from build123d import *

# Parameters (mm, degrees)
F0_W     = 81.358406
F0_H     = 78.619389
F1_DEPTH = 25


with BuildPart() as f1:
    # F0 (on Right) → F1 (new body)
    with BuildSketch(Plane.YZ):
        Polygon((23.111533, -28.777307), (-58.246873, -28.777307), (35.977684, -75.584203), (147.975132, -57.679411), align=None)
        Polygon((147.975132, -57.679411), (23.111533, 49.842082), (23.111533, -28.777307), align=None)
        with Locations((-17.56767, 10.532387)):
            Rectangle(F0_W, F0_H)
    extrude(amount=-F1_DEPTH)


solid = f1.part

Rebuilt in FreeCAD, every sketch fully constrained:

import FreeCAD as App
import Part
import Sketcher
from FreeCAD import Vector

doc = App.newDocument("Part")
params = doc.addObject("Spreadsheet::Sheet", "Params")
for row, (alias, value) in enumerate([
    ("pad1_length", "25 mm"),
], start=1):
    params.set(f"A{row}", alias)
    params.set(f"B{row}", "=" + value)
    params.setAlias(f"B{row}", alias)

body = doc.addObject("PartDesign::Body", "Body")

sketch1 = body.newObject("Sketcher::SketchObject", "Sketch")
sketch1.AttachmentSupport = (doc.getObject("YZ_Plane"), [""])
sketch1.MapMode = "FlatFace"
sketch1.addGeometry(Part.LineSegment(Vector(23.111533, 49.842081, 0), Vector(23.111533, 49.842082, 0)), False)
sketch1.addGeometry(Part.LineSegment(Vector(23.111533, 49.842081, 0), Vector(-58.246873, 49.842081, 0)), False)
sketch1.addGeometry(Part.LineSegment(Vector(-58.246873, 49.842081, 0), Vector(-58.246873, -28.777307, 0)), False)
sketch1.addGeometry(Part.LineSegment(Vector(-58.246872, -28.777307, 0), Vector(-58.246873, -28.777307, 0)), False)
sketch1.addGeometry(Part.LineSegment(Vector(-58.246872, -28.777307, 0), Vector(35.977684, -75.584203, 0)), False)
sketch1.addGeometry(Part.LineSegment(Vector(35.977684, -75.584203, 0), Vector(147.975132, -57.679411, 0)), False)
sketch1.addGeometry(Part.LineSegment(Vector(147.975132, -57.679411, 0), Vector(23.111533, 49.842082, 0)), False)
sketch1.addConstraint([
    Sketcher.Constraint("Coincident", 0, 1, 1, 1),
    Sketcher.Constraint("Coincident", 1, 2, 2, 1),
    Sketcher.Constraint("Coincident", 2, 2, 3, 1),
    Sketcher.Constraint("Coincident", 3, 2, 4, 1),
    Sketcher.Constraint("Coincident", 4, 2, 5, 1),
    Sketcher.Constraint("Coincident", 5, 2, 6, 1),
    Sketcher.Constraint("Coincident", 6, 2, 0, 2),
    Sketcher.Constraint("Horizontal", 0),
    Sketcher.Constraint("Horizontal", 1),
    Sketcher.Constraint("Vertical", 2),
    Sketcher.Constraint("Horizontal", 3),
    Sketcher.Constraint("Distance", 6, 164.778002),
    Sketcher.Constraint("DistanceY", 2, 2, 2, 1, 78.619389),
    Sketcher.Constraint("DistanceX", 0, 1, 5, 2, 124.863599),
    Sketcher.Constraint("Distance", 4, 105.21004),
    Sketcher.Constraint("Distance", 5, 113.419619),
    Sketcher.Constraint("DistanceX", 1, 2, 1, 1, 81.358406),
    Sketcher.Constraint("DistanceY", -1, 1, 0, 1, 49.842081),
    Sketcher.Constraint("DistanceX", -1, 1, 5, 2, 147.975132),
    Sketcher.Constraint("DistanceY", 5, 2, -1, 1, 57.679411),
    Sketcher.Constraint("DistanceX", 0, 1, 4, 2, 12.866151),
])
pad1 = body.newObject("PartDesign::Pad", "Pad")
pad1.Profile = sketch1
pad1.setExpression("Length", "Params.pad1_length")
pad1.Reversed = True

doc.recompute()
